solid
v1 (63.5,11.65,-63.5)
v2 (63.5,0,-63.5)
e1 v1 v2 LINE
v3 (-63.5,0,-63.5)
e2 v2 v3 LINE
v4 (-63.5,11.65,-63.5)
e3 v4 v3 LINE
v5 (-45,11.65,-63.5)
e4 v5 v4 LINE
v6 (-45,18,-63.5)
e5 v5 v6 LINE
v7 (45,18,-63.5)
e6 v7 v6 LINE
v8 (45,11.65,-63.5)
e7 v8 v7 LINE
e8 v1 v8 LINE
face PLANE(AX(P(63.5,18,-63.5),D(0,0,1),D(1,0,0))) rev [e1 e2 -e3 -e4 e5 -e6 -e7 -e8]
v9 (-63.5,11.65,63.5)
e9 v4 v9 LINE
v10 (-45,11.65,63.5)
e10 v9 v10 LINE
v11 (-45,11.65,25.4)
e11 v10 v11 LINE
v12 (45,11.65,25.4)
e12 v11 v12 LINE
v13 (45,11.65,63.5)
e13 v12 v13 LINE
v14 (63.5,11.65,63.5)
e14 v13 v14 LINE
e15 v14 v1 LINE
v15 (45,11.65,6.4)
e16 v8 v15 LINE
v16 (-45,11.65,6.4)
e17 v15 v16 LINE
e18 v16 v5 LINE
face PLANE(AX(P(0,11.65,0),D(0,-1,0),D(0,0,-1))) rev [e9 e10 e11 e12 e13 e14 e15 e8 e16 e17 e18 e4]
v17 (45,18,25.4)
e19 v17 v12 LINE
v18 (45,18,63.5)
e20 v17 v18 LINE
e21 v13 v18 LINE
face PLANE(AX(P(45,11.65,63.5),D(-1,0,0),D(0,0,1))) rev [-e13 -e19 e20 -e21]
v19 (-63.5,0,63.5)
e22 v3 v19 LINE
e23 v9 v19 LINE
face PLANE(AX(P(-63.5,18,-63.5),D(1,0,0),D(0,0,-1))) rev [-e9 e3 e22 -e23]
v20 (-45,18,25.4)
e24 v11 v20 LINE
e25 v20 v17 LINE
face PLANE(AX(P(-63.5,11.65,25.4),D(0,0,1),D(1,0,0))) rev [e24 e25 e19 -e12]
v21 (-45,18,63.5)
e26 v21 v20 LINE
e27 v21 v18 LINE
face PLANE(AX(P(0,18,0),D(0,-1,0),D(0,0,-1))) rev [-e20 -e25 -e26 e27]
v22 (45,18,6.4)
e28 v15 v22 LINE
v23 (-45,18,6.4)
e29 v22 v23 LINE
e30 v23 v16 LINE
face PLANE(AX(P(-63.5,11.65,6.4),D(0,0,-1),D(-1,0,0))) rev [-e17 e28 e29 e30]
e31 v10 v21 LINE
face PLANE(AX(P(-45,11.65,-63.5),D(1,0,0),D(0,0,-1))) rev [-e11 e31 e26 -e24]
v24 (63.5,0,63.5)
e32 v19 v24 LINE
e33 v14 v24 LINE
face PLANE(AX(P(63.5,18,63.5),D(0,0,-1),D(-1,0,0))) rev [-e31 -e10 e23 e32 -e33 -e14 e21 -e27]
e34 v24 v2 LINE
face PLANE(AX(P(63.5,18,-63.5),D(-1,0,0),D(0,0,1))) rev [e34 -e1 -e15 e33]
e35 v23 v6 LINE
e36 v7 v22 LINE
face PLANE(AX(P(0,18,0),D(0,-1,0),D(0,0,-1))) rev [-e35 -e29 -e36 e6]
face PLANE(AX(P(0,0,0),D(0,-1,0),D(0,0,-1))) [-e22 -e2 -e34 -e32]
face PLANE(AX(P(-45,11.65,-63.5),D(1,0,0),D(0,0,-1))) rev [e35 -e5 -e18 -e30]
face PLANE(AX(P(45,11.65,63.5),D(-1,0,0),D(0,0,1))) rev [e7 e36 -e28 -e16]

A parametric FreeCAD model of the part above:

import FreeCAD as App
import Part
import Sketcher
Q = App.Units.Quantity

doc = App.newDocument("Part")
body = doc.addObject("PartDesign::Body", "Body")

# Sketch on XZ plane
sketch1 = doc.addObject("Sketcher::SketchObject", "Sketch")
body.addObject(sketch1)
sketch1.AttachmentSupport = (doc.XZ_Plane, [""])
sketch1.MapMode = "FlatFace"
sketch1.addGeometry([
    Part.LineSegment(App.Vector(-64, -64, 0), App.Vector(-64, 64, 0)),
    Part.LineSegment(App.Vector(-64, 64, 0), App.Vector(64, 64, 0)),
    Part.LineSegment(App.Vector(64, 64, 0), App.Vector(64, -64, 0)),
    Part.LineSegment(App.Vector(64, -64, 0), App.Vector(-64, -64, 0)),
], False)
sketch1.addConstraint([
    Sketcher.Constraint("Coincident", 0, 2, 1, 1),
    Sketcher.Constraint("Coincident", 1, 2, 2, 1),
    Sketcher.Constraint("Coincident", 2, 2, 3, 1),
    Sketcher.Constraint("Coincident", 3, 2, 0, 1),
    Sketcher.Constraint("Vertical", 0),
    Sketcher.Constraint("Horizontal", 1),
    Sketcher.Constraint("Vertical", 2),
    Sketcher.Constraint("Horizontal", 3),
    Sketcher.Constraint("Symmetric", 0, 2, 2, 2, -1, 1),
    Sketcher.Constraint("Equal", 3, 0),
    Sketcher.Constraint("DistanceX", 1, 1, 1, 2, Q("127 mm")),
])
pad1 = doc.addObject("PartDesign::Pad", "Pad")
body.addObject(pad1)
pad1.Profile = sketch1
pad1.Length = 18
pad1.Reversed = True

# Sketch on XZ plane
sketch2 = doc.addObject("Sketcher::SketchObject", "Sketch001")
body.addObject(sketch2)
sketch2.AttachmentSupport = (doc.XZ_Plane, [""])
sketch2.MapMode = "FlatFace"
sketch2.AttachmentOffset = App.Placement(App.Vector(0, 0, -18), App.Rotation())
sketch2.addGeometry([
    Part.LineSegment(App.Vector(-64, 6, 0), App.Vector(-64, 25, 0)),
    Part.LineSegment(App.Vector(-64, 25, 0), App.Vector(64, 25, 0)),
    Part.LineSegment(App.Vector(64, 25, 0), App.Vector(64, 6, 0)),
    Part.LineSegment(App.Vector(64, 6, 0), App.Vector(-64, 6, 0)),
], False)
sketch2.addConstraint([
    Sketcher.Constraint("Coincident", 0, 2, 1, 1),
    Sketcher.Constraint("Coincident", 1, 2, 2, 1),
    Sketcher.Constraint("Coincident", 2, 2, 3, 1),
    Sketcher.Constraint("Coincident", 3, 2, 0, 1),
    Sketcher.Constraint("Vertical", 0),
    Sketcher.Constraint("Horizontal", 1),
    Sketcher.Constraint("Vertical", 2),
    Sketcher.Constraint("Horizontal", 3),
    Sketcher.Constraint("DistanceX", 1, 1, 1, 2, Q("127 mm")),
    Sketcher.Constraint("DistanceY", 0, 1, 0, 2, Q("19 mm")),
    Sketcher.Constraint("DistanceX", 0, 2, -1, 1, Q("63.5 mm")),
    Sketcher.Constraint("DistanceY", -1, 1, 0, 2, Q("25.4 mm")),
])
pocket1 = doc.addObject("PartDesign::Pocket", "Pocket")
body.addObject(pocket1)
pocket1.Profile = sketch2
pocket1.Length = 6.35
pocket1.Reversed = True

# Sketch on XZ plane
sketch3 = doc.addObject("Sketcher::SketchObject", "Sketch002")
body.addObject(sketch3)
sketch3.AttachmentSupport = (doc.XZ_Plane, [""])
sketch3.MapMode = "FlatFace"
sketch3.AttachmentOffset = App.Placement(App.Vector(0, 0, -18), App.Rotation())
sketch3.addGeometry([
    Part.LineSegment(App.Vector(45, -64, 0), App.Vector(45, 64, 0)),  # 0
    Part.LineSegment(App.Vector(45, 64, 0), App.Vector(64, 64, 0)),  # 1
    Part.LineSegment(App.Vector(64, 64, 0), App.Vector(64, -64, 0)),  # 2
    Part.LineSegment(App.Vector(64, -64, 0), App.Vector(45, -64, 0)),  # 3
    Part.LineSegment(App.Vector(-64, -64, 0), App.Vector(-64, 64, 0)),  # 4
    Part.LineSegment(App.Vector(-64, 64, 0), App.Vector(-45, 64, 0)),  # 5
    Part.LineSegment(App.Vector(-45, 64, 0), App.Vector(-45, -64, 0)),  # 6
    Part.LineSegment(App.Vector(-45, -64, 0), App.Vector(-64, -64, 0)),  # 7
], False)
sketch3.addConstraint([
    Sketcher.Constraint("Coincident", 0, 2, 1, 1),
    Sketcher.Constraint("Coincident", 1, 2, 2, 1),
    Sketcher.Constraint("Coincident", 2, 2, 3, 1),
    Sketcher.Constraint("Coincident", 3, 2, 0, 1),
    Sketcher.Constraint("Coincident", 4, 2, 5, 1),
    Sketcher.Constraint("Coincident", 5, 2, 6, 1),
    Sketcher.Constraint("Coincident", 6, 2, 7, 1),
    Sketcher.Constraint("Coincident", 7, 2, 4, 1),
    Sketcher.Constraint("Vertical", 0),
    Sketcher.Constraint("Horizontal", 1),
    Sketcher.Constraint("Vertical", 2),
    Sketcher.Constraint("Horizontal", 3),
    Sketcher.Constraint("Vertical", 4),
    Sketcher.Constraint("Horizontal", 5),
    Sketcher.Constraint("Vertical", 6),
    Sketcher.Constraint("Horizontal", 7),
    Sketcher.Constraint("Symmetric", 2, 2, 4, 2, -1, 1),
    Sketcher.Constraint("Symmetric", 0, 2, 6, 2, -1, 1),
    Sketcher.Constraint("Horizontal", 1, 2, 4, 2),
    Sketcher.Constraint("DistanceY", 0, 1, 0, 2, Q("127 mm")),
    Sketcher.Constraint("DistanceX", 1, 1, 1, 2, Q("18.5 mm")),
    Sketcher.Constraint("DistanceX", -1, 1, 0, 2, Q("45 mm")),
])
pocket2 = doc.addObject("PartDesign::Pocket", "Pocket001")
body.addObject(pocket2)
pocket2.Profile = sketch3
pocket2.Length = 6.35
pocket2.Reversed = True

doc.recompute()
